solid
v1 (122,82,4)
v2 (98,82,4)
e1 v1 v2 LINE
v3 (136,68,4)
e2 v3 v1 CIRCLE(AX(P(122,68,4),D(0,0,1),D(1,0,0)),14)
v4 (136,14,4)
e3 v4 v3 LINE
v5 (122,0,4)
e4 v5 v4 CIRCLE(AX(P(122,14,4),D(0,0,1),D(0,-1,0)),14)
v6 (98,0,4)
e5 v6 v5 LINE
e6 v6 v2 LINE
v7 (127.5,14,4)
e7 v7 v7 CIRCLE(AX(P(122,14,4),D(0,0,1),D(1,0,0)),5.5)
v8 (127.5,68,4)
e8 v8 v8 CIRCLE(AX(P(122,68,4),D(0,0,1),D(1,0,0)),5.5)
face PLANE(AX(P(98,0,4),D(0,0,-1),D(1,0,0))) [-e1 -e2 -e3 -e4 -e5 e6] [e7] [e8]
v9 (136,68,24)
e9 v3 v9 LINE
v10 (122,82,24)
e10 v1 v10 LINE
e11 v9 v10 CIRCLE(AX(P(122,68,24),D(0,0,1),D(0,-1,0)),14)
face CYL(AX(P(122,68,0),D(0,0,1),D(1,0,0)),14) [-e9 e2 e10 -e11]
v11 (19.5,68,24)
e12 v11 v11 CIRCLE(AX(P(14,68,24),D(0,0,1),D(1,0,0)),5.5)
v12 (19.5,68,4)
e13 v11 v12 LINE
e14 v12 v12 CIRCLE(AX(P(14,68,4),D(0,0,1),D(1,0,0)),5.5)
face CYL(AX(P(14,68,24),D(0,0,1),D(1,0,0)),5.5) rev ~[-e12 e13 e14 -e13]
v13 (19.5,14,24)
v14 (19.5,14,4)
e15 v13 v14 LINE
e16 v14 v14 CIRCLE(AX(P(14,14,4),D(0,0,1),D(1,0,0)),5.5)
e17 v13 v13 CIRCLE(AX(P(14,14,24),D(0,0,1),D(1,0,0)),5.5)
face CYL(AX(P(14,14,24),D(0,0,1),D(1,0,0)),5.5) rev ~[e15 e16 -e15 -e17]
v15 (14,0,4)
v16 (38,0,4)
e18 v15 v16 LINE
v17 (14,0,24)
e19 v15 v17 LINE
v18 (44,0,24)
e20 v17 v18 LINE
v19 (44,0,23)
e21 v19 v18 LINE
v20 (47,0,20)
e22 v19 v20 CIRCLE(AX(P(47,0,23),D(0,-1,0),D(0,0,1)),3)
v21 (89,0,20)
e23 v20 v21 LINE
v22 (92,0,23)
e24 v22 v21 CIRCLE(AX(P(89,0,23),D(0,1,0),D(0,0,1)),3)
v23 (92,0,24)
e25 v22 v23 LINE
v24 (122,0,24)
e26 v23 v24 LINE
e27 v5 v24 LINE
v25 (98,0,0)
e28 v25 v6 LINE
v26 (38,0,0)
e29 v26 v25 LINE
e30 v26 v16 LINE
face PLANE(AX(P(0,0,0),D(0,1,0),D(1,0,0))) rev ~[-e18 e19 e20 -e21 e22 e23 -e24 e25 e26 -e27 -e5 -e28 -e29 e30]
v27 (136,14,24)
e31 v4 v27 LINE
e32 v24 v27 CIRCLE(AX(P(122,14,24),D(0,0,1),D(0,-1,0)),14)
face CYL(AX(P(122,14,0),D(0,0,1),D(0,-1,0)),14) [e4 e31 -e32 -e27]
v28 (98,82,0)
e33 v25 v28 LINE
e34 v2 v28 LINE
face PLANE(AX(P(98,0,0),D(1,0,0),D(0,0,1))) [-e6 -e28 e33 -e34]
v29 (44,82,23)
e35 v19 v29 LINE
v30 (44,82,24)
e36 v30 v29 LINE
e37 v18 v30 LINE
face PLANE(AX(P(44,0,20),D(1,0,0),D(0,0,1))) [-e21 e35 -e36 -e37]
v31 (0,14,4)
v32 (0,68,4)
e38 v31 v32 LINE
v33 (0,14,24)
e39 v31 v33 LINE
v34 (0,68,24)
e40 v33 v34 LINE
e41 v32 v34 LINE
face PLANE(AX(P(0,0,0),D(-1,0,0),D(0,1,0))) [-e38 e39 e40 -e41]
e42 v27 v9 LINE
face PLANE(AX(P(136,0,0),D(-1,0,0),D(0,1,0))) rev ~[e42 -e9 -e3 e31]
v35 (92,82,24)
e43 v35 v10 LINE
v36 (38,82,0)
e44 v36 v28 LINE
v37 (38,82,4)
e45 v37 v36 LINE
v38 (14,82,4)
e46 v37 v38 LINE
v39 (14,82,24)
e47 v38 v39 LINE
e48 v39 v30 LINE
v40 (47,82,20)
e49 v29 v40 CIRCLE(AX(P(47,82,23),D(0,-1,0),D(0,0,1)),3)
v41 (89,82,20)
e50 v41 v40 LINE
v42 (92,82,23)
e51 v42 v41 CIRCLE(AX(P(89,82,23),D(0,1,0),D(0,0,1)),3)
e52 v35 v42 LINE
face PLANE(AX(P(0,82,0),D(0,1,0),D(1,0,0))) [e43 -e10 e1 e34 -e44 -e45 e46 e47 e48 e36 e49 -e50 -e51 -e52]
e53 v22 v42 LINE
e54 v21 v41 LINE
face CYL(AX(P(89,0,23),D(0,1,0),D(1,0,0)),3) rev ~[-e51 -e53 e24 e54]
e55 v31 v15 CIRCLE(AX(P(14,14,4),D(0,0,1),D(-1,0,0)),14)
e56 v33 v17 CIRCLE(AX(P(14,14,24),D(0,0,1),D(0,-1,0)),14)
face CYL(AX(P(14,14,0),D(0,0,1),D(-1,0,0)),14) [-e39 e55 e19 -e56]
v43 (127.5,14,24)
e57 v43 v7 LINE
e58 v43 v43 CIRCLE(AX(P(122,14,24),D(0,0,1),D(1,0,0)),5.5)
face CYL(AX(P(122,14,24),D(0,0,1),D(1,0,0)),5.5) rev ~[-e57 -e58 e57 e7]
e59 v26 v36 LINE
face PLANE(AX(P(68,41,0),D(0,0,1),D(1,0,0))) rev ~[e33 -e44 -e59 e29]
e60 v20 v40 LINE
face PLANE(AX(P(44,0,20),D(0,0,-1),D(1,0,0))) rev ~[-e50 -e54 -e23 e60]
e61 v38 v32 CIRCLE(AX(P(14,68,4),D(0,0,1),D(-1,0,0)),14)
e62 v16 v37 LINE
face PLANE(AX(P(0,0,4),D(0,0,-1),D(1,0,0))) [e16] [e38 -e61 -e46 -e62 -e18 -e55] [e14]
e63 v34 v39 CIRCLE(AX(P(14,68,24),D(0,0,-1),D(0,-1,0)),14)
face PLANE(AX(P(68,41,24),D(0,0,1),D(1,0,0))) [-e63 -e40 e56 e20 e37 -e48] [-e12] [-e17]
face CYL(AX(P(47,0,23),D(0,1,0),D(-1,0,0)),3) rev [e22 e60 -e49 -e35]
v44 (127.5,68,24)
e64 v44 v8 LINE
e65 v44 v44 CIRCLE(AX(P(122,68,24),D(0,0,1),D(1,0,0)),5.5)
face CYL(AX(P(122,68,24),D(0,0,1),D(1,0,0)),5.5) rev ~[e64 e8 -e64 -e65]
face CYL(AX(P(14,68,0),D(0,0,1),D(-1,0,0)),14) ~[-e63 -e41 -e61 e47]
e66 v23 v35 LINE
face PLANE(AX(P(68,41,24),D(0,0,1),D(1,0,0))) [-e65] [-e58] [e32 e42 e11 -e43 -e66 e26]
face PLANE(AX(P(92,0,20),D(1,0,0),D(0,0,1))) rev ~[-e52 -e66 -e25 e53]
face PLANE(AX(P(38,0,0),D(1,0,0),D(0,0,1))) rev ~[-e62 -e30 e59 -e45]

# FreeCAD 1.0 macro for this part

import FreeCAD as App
import Part
import Sketcher
from FreeCAD import Vector


def edges_at(feature, points):
    """Names of the edges that pass closest to the given points."""
    edges = feature.Shape.Edges
    near = lambda p: min(range(len(edges)), key=lambda i: edges[i].distToShape(Part.Vertex(*p))[0])
    return sorted({f"Edge{near(p) + 1}" for p in points})

doc = App.newDocument("Part")
body = doc.addObject("PartDesign::Body", "Body")

sketch1 = body.newObject("Sketcher::SketchObject", "Sketch")
sketch1.AttachmentSupport = (doc.getObject("XY_Plane"), [""])
sketch1.MapMode = "FlatFace"
sketch1.addGeometry([
    Part.LineSegment(Vector(0, 82, 0), Vector(0, 0, 0)),
    Part.LineSegment(Vector(0, 0, 0), Vector(136, 0, 0)),
    Part.LineSegment(Vector(136, 0, 0), Vector(136, 82, 0)),
    Part.LineSegment(Vector(136, 82, 0), Vector(0, 82, 0)),
], False)
sketch1.addConstraint([
    Sketcher.Constraint("Coincident", 0, 2, 1, 1),
    Sketcher.Constraint("Coincident", 1, 2, 2, 1),
    Sketcher.Constraint("Coincident", 2, 2, 3, 1),
    Sketcher.Constraint("Coincident", 3, 2, 0, 1),
    Sketcher.Constraint("Vertical", 0),
    Sketcher.Constraint("Horizontal", 1),
    Sketcher.Constraint("Vertical", 2),
    Sketcher.Constraint("Horizontal", 3),
    Sketcher.Constraint("Coincident", 0, 2, -1, 1),
    Sketcher.Constraint("DistanceX", 1, 1, 1, 2, 136.0),
    Sketcher.Constraint("DistanceY", 0, 2, 0, 1, 82.0),
])
pad1 = body.newObject("PartDesign::Pad", "Pad")
pad1.Profile = sketch1
pad1.Length = 24
doc.recompute()

fillet = body.newObject("PartDesign::Fillet", "Fillet")
fillet.Base = (pad1, edges_at(pad1, [
    (0, 0, 12),
    (136, 0, 12),
    (136, 82, 12),
    (0, 82, 12),
]))
fillet.Radius = 14

sketch2 = body.newObject("Sketcher::SketchObject", "Sketch001")
sketch2.AttachmentSupport = (doc.getObject("XZ_Plane"), [""])
sketch2.MapMode = "FlatFace"
sketch2.addGeometry([
    Part.LineSegment(Vector(44, 24, 0), Vector(44, 20, 0)),
    Part.LineSegment(Vector(44, 20, 0), Vector(92, 20, 0)),
    Part.LineSegment(Vector(92, 20, 0), Vector(92, 24, 0)),
    Part.LineSegment(Vector(92, 24, 0), Vector(44, 24, 0)),
], False)
sketch2.addConstraint([
    Sketcher.Constraint("Coincident", 0, 2, 1, 1),
    Sketcher.Constraint("Coincident", 1, 2, 2, 1),
    Sketcher.Constraint("Coincident", 2, 2, 3, 1),
    Sketcher.Constraint("Coincident", 3, 2, 0, 1),
    Sketcher.Constraint("Vertical", 0),
    Sketcher.Constraint("Horizontal", 1),
    Sketcher.Constraint("Vertical", 2),
    Sketcher.Constraint("Horizontal", 3),
    Sketcher.Constraint("DistanceX", 1, 1, 1, 2, 48.0),
    Sketcher.Constraint("DistanceY", 0, 2, 0, 1, 4.0),
    Sketcher.Constraint("DistanceX", -1, 1, 0, 2, 44.0),
    Sketcher.Constraint("DistanceY", -1, 1, 0, 2, 20.0),
])
pocket1 = body.newObject("PartDesign::Pocket", "Pocket")
pocket1.Profile = sketch2
pocket1.Type = "ThroughAll"
doc.recompute()

fillet2 = body.newObject("PartDesign::Fillet", "Fillet001")
fillet2.Base = (pocket1, edges_at(pocket1, [(44, 41, 20), (92, 41, 20)]))
fillet2.Radius = 3

sketch3 = body.newObject("Sketcher::SketchObject", "Sketch002")
sketch3.AttachmentSupport = (doc.getObject("XZ_Plane"), [""])
sketch3.MapMode = "FlatFace"
sketch3.addGeometry([
    Part.LineSegment(Vector(0, 4, 0), Vector(0, 0, 0)),
    Part.LineSegment(Vector(0, 0, 0), Vector(38, 0, 0)),
    Part.LineSegment(Vector(38, 0, 0), Vector(38, 4, 0)),
    Part.LineSegment(Vector(38, 4, 0), Vector(0, 4, 0)),
    Part.LineSegment(Vector(98, 4, 0), Vector(98, 0, 0)),
    Part.LineSegment(Vector(98, 0, 0), Vector(136, 0, 0)),
    Part.LineSegment(Vector(136, 0, 0), Vector(136, 4, 0)),
    Part.LineSegment(Vector(136, 4, 0), Vector(98, 4, 0)),
], False)
sketch3.addConstraint([
    Sketcher.Constraint("Coincident", 0, 2, 1, 1),
    Sketcher.Constraint("Coincident", 1, 2, 2, 1),
    Sketcher.Constraint("Coincident", 2, 2, 3, 1),
    Sketcher.Constraint("Coincident", 3, 2, 0, 1),
    Sketcher.Constraint("Coincident", 4, 2, 5, 1),
    Sketcher.Constraint("Coincident", 5, 2, 6, 1),
    Sketcher.Constraint("Coincident", 6, 2, 7, 1),
    Sketcher.Constraint("Coincident", 7, 2, 4, 1),
    Sketcher.Constraint("Vertical", 0),
    Sketcher.Constraint("Horizontal", 1),
    Sketcher.Constraint("Vertical", 2),
    Sketcher.Constraint("Horizontal", 3),
    Sketcher.Constraint("Vertical", 4),
    Sketcher.Constraint("Horizontal", 5),
    Sketcher.Constraint("Vertical", 6),
    Sketcher.Constraint("Horizontal", 7),
    Sketcher.Constraint("Coincident", 0, 2, -1, 1),
    Sketcher.Constraint("PointOnObject", 4, 2, -1),
    Sketcher.Constraint("Horizontal", 3, 2, 6, 2),
    Sketcher.Constraint("Equal", 3, 5),
    Sketcher.Constraint("DistanceX", 1, 1, 1, 2, 38.0),
    Sketcher.Constraint("DistanceY", 0, 2, 0, 1, 4.0),
    Sketcher.Constraint("DistanceX", -1, 1, 4, 2, 98.0),
])
pocket2 = body.newObject("PartDesign::Pocket", "Pocket001")
pocket2.Profile = sketch3
pocket2.Type = "ThroughAll"

sketch4 = body.newObject("Sketcher::SketchObject", "Sketch003")
sketch4.AttachmentSupport = (doc.getObject("XY_Plane"), [""])
sketch4.MapMode = "FlatFace"
sketch4.AttachmentOffset = App.Placement(Vector(0, 0, 24), App.Rotation())
sketch4.addGeometry([
    Part.Circle(Vector(14, 68, 0), Vector(0, 0, 1), 5.5),
    Part.Circle(Vector(14, 14, 0), Vector(0, 0, 1), 5.5),
    Part.Circle(Vector(122, 68, 0), Vector(0, 0, 1), 5.5),
    Part.Circle(Vector(122, 14, 0), Vector(0, 0, 1), 5.5),
], False)
sketch4.addConstraint([
    Sketcher.Constraint("Equal", 0, 1),
    Sketcher.Constraint("Equal", 1, 2),
    Sketcher.Constraint("Equal", 2, 3),
    Sketcher.Constraint("Horizontal", 0, 3, 2, 3),
    Sketcher.Constraint("Horizontal", 1, 3, 3, 3),
    Sketcher.Constraint("Vertical", 0, 3, 1, 3),
    Sketcher.Constraint("Vertical", 2, 3, 3, 3),
    Sketcher.Constraint("Diameter", 0, 11.0),
    Sketcher.Constraint("DistanceX", -1, 1, 0, 3, 14.0),
    Sketcher.Constraint("DistanceY", -1, 1, 0, 3, 68.0),
    Sketcher.Constraint("DistanceY", -1, 1, 1, 3, 14.0),
    Sketcher.Constraint("DistanceX", -1, 1, 2, 3, 122.0),
])
pocket3 = body.newObject("PartDesign::Pocket", "Pocket002")
pocket3.Profile = sketch4
pocket3.Type = "ThroughAll"

doc.recompute()
